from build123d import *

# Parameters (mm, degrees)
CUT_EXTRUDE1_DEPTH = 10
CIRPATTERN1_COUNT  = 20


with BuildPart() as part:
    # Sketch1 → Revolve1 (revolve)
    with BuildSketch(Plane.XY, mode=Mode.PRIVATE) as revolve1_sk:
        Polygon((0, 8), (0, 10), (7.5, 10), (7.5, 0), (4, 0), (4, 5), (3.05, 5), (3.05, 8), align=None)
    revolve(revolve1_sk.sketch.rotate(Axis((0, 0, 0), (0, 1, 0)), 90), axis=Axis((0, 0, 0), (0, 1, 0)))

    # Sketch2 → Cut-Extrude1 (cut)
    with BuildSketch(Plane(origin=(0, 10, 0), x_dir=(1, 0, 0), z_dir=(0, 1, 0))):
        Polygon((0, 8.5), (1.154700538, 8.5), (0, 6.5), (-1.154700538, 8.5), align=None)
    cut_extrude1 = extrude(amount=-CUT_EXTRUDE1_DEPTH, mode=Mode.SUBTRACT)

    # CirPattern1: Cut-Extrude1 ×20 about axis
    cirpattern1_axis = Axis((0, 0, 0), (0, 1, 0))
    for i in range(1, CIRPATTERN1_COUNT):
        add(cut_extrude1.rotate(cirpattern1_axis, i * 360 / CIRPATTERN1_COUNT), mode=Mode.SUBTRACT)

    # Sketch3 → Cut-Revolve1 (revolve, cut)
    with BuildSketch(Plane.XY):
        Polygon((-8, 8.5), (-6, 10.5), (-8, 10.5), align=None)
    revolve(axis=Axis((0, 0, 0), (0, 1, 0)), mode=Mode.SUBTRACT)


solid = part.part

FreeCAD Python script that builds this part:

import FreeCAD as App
import Part
import Sketcher
Q = App.Units.Quantity

doc = App.newDocument("Part")
body = doc.addObject("PartDesign::Body", "Body")

sketch1 = body.newObject("Sketcher::SketchObject", "Sketch")
sketch1.AttachmentSupport = (doc.getObject("XY_Plane"), [""])
sketch1.MapMode = "FlatFace"
sketch1.addGeometry([
    Part.LineSegment(App.Vector(0, 10, 0), App.Vector(0, 8, 0)),
    Part.LineSegment(App.Vector(0, 8, 0), App.Vector(3.05, 8, 0)),
    Part.LineSegment(App.Vector(3.05, 8, 0), App.Vector(3.05, 5, 0)),
    Part.LineSegment(App.Vector(3.05, 5, 0), App.Vector(4, 5, 0)),
    Part.LineSegment(App.Vector(4, 5, 0), App.Vector(4, 0, 0)),
    Part.LineSegment(App.Vector(4, 0, 0), App.Vector(7.5, 0, 0)),
    Part.LineSegment(App.Vector(7.5, 0, 0), App.Vector(7.5, 10, 0)),
    Part.LineSegment(App.Vector(7.5, 10, 0), App.Vector(0, 10, 0)),
], False)
sketch1.addConstraint([
    Sketcher.Constraint("Coincident", 0, 2, 1, 1),
    Sketcher.Constraint("Coincident", 1, 2, 2, 1),
    Sketcher.Constraint("Coincident", 2, 2, 3, 1),
    Sketcher.Constraint("Coincident", 3, 2, 4, 1),
    Sketcher.Constraint("Coincident", 4, 2, 5, 1),
    Sketcher.Constraint("Coincident", 5, 2, 6, 1),
    Sketcher.Constraint("Coincident", 6, 2, 7, 1),
    Sketcher.Constraint("Coincident", 7, 2, 0, 1),
    Sketcher.Constraint("Vertical", 0),
    Sketcher.Constraint("Horizontal", 1),
    Sketcher.Constraint("Vertical", 2),
    Sketcher.Constraint("Horizontal", 3),
    Sketcher.Constraint("Vertical", 4),
    Sketcher.Constraint("Horizontal", 5),
    Sketcher.Constraint("Vertical", 6),
    Sketcher.Constraint("Horizontal", 7),
    Sketcher.Constraint("PointOnObject", 0, 2, -2),
    Sketcher.Constraint("PointOnObject", 4, 2, -1),
    Sketcher.Constraint("DistanceY", 0, 2, 0, 1, 2.0),
    Sketcher.Constraint("DistanceY", 2, 2, 2, 1, 3.0),
    Sketcher.Constraint("DistanceY", 4, 2, 4, 1, 5.0),
    Sketcher.Constraint("DistanceX", 5, 1, 5, 2, 3.5),
    Sketcher.Constraint("DistanceX", 7, 2, 7, 1, 7.5),
    Sketcher.Constraint("DistanceX", 1, 1, 1, 2, 3.05),
])
revolution = body.newObject("PartDesign::Revolution", "Revolution")
revolution.Profile = sketch1
revolution.ReferenceAxis = (sketch1, ["V_Axis"])
revolution.Angle = 360

sketch2 = body.newObject("Sketcher::SketchObject", "Sketch001")
sketch2.AttachmentSupport = (doc.getObject("XZ_Plane"), [""])
sketch2.MapMode = "FlatFace"
sketch2.AttachmentOffset = App.Placement(App.Vector(0, 0, -10), App.Rotation())
sketch2.addGeometry([
    Part.LineSegment(App.Vector(1.154701, -8.5, 0), App.Vector(-1.154701, -8.5, 0)),
    Part.LineSegment(App.Vector(-1.154701, -8.5, 0), App.Vector(0, -6.5, 0)),
    Part.LineSegment(App.Vector(0, -6.5, 0), App.Vector(1.154701, -8.5, 0)),
], False)
sketch2.addConstraint([
    Sketcher.Constraint("Coincident", 0, 2, 1, 1),
    Sketcher.Constraint("Coincident", 1, 2, 2, 1),
    Sketcher.Constraint("Coincident", 2, 2, 0, 1),
    Sketcher.Constraint("Horizontal", 0),
    Sketcher.Constraint("PointOnObject", 1, 2, -2),
    Sketcher.Constraint("Equal", 1, 2),
    Sketcher.Constraint("Angle", 1, Q("60 deg")),
    Sketcher.Constraint("DistanceY", 0, 2, 1, 2, 2.0),
    Sketcher.Constraint("DistanceY", 0, 2, -1, 1, 8.5),
])
pocket1 = body.newObject("PartDesign::Pocket", "Pocket")
pocket1.Profile = sketch2
pocket1.Length = 10
pocket1.Reversed = True
doc.recompute()

polarpattern = body.newObject("PartDesign::PolarPattern", "PolarPattern")
polarpattern.Originals = [pocket1]
polarpattern.Axis = (doc.getObject("Y_Axis"), [""])
polarpattern.Angle = 360
polarpattern.Occurrences = 20
body.Tip = polarpattern

sketch3 = body.newObject("Sketcher::SketchObject", "Sketch002")
sketch3.AttachmentSupport = (doc.getObject("XY_Plane"), [""])
sketch3.MapMode = "FlatFace"
sketch3.addGeometry([
    Part.LineSegment(App.Vector(-8, 8.5, 0), App.Vector(-6, 10.5, 0)),
    Part.LineSegment(App.Vector(-6, 10.5, 0), App.Vector(-8, 10.5, 0)),
    Part.LineSegment(App.Vector(-8, 10.5, 0), App.Vector(-8, 8.5, 0)),
], False)
sketch3.addConstraint([
    Sketcher.Constraint("Coincident", 0, 2, 1, 1),
    Sketcher.Constraint("Coincident", 1, 2, 2, 1),
    Sketcher.Constraint("Coincident", 2, 2, 0, 1),
    Sketcher.Constraint("Horizontal", 1),
    Sketcher.Constraint("Vertical", 2),
    Sketcher.Constraint("Equal", 1, 2),
    Sketcher.Constraint("DistanceX", 1, 2, 1, 1, 2.0),
    Sketcher.Constraint("DistanceX", 0, 2, -1, 1, 6.0),
    Sketcher.Constraint("DistanceY", -1, 1, 0, 2, 10.5),
])
groove = body.newObject("PartDesign::Groove", "Groove")
groove.Profile = sketch3
groove.ReferenceAxis = (sketch3, ["V_Axis"])
groove.Angle = 360

doc.recompute()
